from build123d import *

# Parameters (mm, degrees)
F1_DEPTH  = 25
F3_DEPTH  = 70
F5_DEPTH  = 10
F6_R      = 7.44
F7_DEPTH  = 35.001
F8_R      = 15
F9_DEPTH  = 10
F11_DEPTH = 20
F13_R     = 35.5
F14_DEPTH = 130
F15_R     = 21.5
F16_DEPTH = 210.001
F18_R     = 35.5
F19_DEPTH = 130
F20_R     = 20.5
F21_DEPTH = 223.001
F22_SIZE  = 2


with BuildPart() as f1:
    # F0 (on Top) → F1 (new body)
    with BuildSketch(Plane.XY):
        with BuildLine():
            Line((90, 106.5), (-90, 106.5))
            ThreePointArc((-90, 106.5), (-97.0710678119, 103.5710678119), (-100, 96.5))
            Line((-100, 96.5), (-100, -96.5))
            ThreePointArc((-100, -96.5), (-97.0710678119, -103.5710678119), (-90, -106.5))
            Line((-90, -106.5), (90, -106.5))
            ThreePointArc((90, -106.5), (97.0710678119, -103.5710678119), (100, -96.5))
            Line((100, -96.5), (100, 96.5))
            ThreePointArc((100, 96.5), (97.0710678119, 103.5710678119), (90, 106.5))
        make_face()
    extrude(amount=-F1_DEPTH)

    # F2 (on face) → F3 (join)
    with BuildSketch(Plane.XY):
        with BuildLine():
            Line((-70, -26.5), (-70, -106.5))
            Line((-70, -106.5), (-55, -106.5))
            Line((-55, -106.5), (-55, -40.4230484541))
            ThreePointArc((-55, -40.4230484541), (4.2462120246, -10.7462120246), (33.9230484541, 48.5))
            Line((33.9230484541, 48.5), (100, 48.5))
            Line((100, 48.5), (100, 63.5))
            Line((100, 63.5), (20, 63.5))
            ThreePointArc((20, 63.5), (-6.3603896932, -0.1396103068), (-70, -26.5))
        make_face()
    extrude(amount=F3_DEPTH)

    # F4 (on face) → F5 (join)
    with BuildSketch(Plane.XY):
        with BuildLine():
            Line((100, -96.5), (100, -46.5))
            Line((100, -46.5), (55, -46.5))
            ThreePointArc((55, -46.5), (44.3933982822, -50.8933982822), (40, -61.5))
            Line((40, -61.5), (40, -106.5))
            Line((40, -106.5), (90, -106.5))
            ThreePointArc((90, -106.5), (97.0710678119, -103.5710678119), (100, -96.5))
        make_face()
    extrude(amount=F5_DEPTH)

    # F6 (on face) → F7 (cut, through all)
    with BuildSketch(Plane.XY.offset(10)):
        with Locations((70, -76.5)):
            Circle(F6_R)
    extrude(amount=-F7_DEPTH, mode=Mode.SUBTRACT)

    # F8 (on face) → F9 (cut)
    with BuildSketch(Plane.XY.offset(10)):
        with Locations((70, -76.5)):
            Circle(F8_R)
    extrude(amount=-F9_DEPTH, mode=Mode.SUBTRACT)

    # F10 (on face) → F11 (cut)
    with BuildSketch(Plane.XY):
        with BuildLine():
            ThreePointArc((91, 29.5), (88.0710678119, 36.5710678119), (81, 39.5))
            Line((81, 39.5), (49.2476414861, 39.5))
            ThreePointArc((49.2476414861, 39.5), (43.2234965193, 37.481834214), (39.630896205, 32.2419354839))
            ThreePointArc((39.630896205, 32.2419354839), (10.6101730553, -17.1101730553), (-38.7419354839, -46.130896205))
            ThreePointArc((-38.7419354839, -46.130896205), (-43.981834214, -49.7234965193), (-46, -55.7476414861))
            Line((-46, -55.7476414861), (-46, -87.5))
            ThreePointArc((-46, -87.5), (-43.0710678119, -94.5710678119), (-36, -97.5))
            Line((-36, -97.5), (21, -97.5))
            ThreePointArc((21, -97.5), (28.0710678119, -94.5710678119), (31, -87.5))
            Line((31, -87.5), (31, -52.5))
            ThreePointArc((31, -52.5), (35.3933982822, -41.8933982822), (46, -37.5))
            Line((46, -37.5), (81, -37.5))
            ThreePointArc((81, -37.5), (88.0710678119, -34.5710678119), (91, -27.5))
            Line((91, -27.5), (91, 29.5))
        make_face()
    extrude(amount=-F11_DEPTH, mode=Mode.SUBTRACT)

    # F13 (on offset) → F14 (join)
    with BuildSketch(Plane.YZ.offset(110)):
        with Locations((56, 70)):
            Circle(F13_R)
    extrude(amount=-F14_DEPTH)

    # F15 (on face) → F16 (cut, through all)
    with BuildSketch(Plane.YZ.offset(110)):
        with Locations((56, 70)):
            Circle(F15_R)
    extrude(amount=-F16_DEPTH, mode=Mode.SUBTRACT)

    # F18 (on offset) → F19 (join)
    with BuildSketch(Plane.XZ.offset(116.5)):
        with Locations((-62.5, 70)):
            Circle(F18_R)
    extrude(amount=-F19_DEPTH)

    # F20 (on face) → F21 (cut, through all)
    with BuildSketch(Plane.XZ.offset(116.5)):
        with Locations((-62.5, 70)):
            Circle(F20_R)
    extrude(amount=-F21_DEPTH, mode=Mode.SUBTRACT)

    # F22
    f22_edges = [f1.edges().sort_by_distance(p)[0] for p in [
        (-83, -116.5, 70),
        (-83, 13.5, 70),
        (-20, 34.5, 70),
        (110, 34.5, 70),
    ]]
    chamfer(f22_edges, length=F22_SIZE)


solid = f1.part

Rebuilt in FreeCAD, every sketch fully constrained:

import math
import FreeCAD as App
import Part
import Sketcher
Q = App.Units.Quantity


def edges_at(feature, points):
    """Names of the edges that pass closest to the given points."""
    edges = feature.Shape.Edges
    near = lambda p: min(range(len(edges)), key=lambda i: edges[i].distToShape(Part.Vertex(*p))[0])
    return sorted({f"Edge{near(p) + 1}" for p in points})

doc = App.newDocument("Part")
params = doc.addObject("Spreadsheet::Sheet", "Params")
for row, (alias, value) in enumerate([
    ("sketch1_radius", "10 mm"),
    ("sketch1_width", "180 mm"),
    ("sketch1_height", "193 mm"),
    ("pad1_length", "25 mm"),
    ("sketch2_radius", "105 mm"),
    ("sketch2_radius2", "90 mm"),
    ("sketch2_width", "15 mm"),
    ("sketch2_width2", "80 mm"),
    ("pad2_length", "70 mm"),
    ("sketch3_radius", "15 mm"),
    ("sketch3_radius2", "10 mm"),
    ("sketch3_width", "45 mm"),
    ("pad3_length", "10 mm"),
    ("sketch4_diameter", "14.88 mm"),
    ("sketch5_diameter", "30 mm"),
    ("pocket2_length", "10 mm"),
    ("sketch6_radius", "10 mm"),
    ("sketch6_radius2", "114 mm"),
    ("sketch6_radius3", "15 mm"),
    ("sketch6_width", "57 mm"),
    ("sketch6_width2", "35 mm"),
    ("pocket3_length", "20 mm"),
    ("sketch7_diameter", "71 mm"),
    ("pad4_length", "130 mm"),
    ("sketch8_diameter", "43 mm"),
    ("sketch9_diameter", "71 mm"),
    ("pad5_length", "130 mm"),
    ("sketch10_diameter", "41 mm"),
    ("chamfer_size", "2 mm"),
], start=1):
    params.set(f"A{row}", alias)
    params.set(f"B{row}", "=" + value)
    params.setAlias(f"B{row}", alias)

body = doc.addObject("PartDesign::Body", "Body")

sketch1 = body.newObject("Sketcher::SketchObject", "Sketch")
sketch1.AttachmentSupport = (doc.getObject("XY_Plane"), [""])
sketch1.MapMode = "FlatFace"
sketch1.addGeometry([
    Part.LineSegment(App.Vector(90, 106.5, 0), App.Vector(-90, 106.5, 0)),
    Part.ArcOfCircle(Part.Circle(App.Vector(-90, 96.5, 0), App.Vector(0, 0, 1), 10), math.radians(90), math.radians(180)),
    Part.LineSegment(App.Vector(-100, 96.5, 0), App.Vector(-100, -96.5, 0)),
    Part.ArcOfCircle(Part.Circle(App.Vector(-90, -96.5, 0), App.Vector(0, 0, 1), 10), math.radians(180), math.radians(270)),
    Part.LineSegment(App.Vector(-90, -106.5, 0), App.Vector(90, -106.5, 0)),
    Part.ArcOfCircle(Part.Circle(App.Vector(90, -96.5, 0), App.Vector(0, 0, 1), 10), math.radians(-90), math.radians(0)),
    Part.LineSegment(App.Vector(100, -96.5, 0), App.Vector(100, 96.5, 0)),
    Part.ArcOfCircle(Part.Circle(App.Vector(90, 96.5, 0), App.Vector(0, 0, 1), 10), math.radians(0), math.radians(90)),
], False)
sketch1.addConstraint([
    Sketcher.Constraint("Tangent", 0, 2, 1, 1),
    Sketcher.Constraint("Tangent", 1, 2, 2, 1),
    Sketcher.Constraint("Tangent", 2, 2, 3, 1),
    Sketcher.Constraint("Tangent", 3, 2, 4, 1),
    Sketcher.Constraint("Tangent", 4, 2, 5, 1),
    Sketcher.Constraint("Tangent", 5, 2, 6, 1),
    Sketcher.Constraint("Tangent", 6, 2, 7, 1),
    Sketcher.Constraint("Tangent", 7, 2, 0, 1),
    Sketcher.Constraint("Horizontal", 0),
    Sketcher.Constraint("Vertical", 2),
    Sketcher.Constraint("Horizontal", 4),
    Sketcher.Constraint("Vertical", 6),
    Sketcher.Constraint("Equal", 1, 3),
    Sketcher.Constraint("Equal", 3, 5),
    Sketcher.Constraint("Equal", 5, 7),
    Sketcher.Constraint("Symmetric", 1, 3, 5, 3, -1, 1),
    Sketcher.Constraint("Radius", 1, Q("10 mm")),
    Sketcher.Constraint("DistanceX", 0, 2, 0, 1, Q("180 mm")),
    Sketcher.Constraint("DistanceY", 2, 2, 2, 1, Q("193 mm")),
])
sketch1.setExpression("Constraints[16]", "Params.sketch1_radius")
sketch1.setExpression("Constraints[17]", "Params.sketch1_width")
sketch1.setExpression("Constraints[18]", "Params.sketch1_height")
pad1 = body.newObject("PartDesign::Pad", "Pad")
pad1.Profile = sketch1
pad1.setExpression("Length", "Params.pad1_length")
pad1.Reversed = True

sketch2 = body.newObject("Sketcher::SketchObject", "Sketch001")
sketch2.AttachmentSupport = (doc.getObject("XY_Plane"), [""])
sketch2.MapMode = "FlatFace"
sketch2.addGeometry([
    Part.LineSegment(App.Vector(-70, -26.5, 0), App.Vector(-70, -106.5, 0)),
    Part.LineSegment(App.Vector(-70, -106.5, 0), App.Vector(-55, -106.5, 0)),
    Part.LineSegment(App.Vector(-55, -106.5, 0), App.Vector(-55, -40.423048, 0)),
    Part.ArcOfCircle(Part.Circle(App.Vector(-70, 63.5, 0), App.Vector(0, 0, 1), 105), math.radians(-81.786789), math.radians(-8.213211)),
    Part.LineSegment(App.Vector(33.923048, 48.5, 0), App.Vector(100, 48.5, 0)),
    Part.LineSegment(App.Vector(100, 48.5, 0), App.Vector(100, 63.5, 0)),
    Part.LineSegment(App.Vector(100, 63.5, 0), App.Vector(20, 63.5, 0)),
    Part.ArcOfCircle(Part.Circle(App.Vector(-70, 63.5, 0), App.Vector(0, 0, 1), 90), math.radians(-90), math.radians(0)),
], False)
sketch2.addConstraint([
    Sketcher.Constraint("Coincident", 0, 2, 1, 1),
    Sketcher.Constraint("Coincident", 1, 2, 2, 1),
    Sketcher.Constraint("Coincident", 2, 2, 3, 1),
    Sketcher.Constraint("Coincident", 3, 2, 4, 1),
    Sketcher.Constraint("Coincident", 4, 2, 5, 1),
    Sketcher.Constraint("Coincident", 5, 2, 6, 1),
    Sketcher.Constraint("Coincident", 6, 2, 7, 2),
    Sketcher.Constraint("Coincident", 7, 1, 0, 1),
    Sketcher.Constraint("Vertical", 0),
    Sketcher.Constraint("Horizontal", 1),
    Sketcher.Constraint("Vertical", 2),
    Sketcher.Constraint("Horizontal", 4),
    Sketcher.Constraint("Vertical", 5),
    Sketcher.Constraint("Horizontal", 6),
    Sketcher.Constraint("Coincident", 7, 3, 3, 3),
    Sketcher.Constraint("Horizontal", 7, 3, 5, 2),
    Sketcher.Constraint("Vertical", 7, 3, 0, 2),
    Sketcher.Constraint("Equal", 6, 0),
    Sketcher.Constraint("Equal", 4, 2),
    Sketcher.Constraint("Radius", 3, Q("105 mm")),
    Sketcher.Constraint("Radius", 7, Q("90 mm")),
    Sketcher.Constraint("DistanceX", 1, 1, 1, 2, Q("15 mm")),
    Sketcher.Constraint("DistanceX", 6, 2, 6, 1, Q("80 mm")),
    Sketcher.Constraint("DistanceX", 3, 3, -1, 1, Q("70 mm")),
    Sketcher.Constraint("DistanceY", -1, 1, 3, 3, Q("63.5 mm")),
])
sketch2.setExpression("Constraints[19]", "Params.sketch2_radius")
sketch2.setExpression("Constraints[20]", "Params.sketch2_radius2")
sketch2.setExpression("Constraints[21]", "Params.sketch2_width")
sketch2.setExpression("Constraints[22]", "Params.sketch2_width2")
pad2 = body.newObject("PartDesign::Pad", "Pad001")
pad2.Profile = sketch2
pad2.setExpression("Length", "Params.pad2_length")

sketch3 = body.newObject("Sketcher::SketchObject", "Sketch002")
sketch3.AttachmentSupport = (doc.getObject("XY_Plane"), [""])
sketch3.MapMode = "FlatFace"
sketch3.addGeometry([
    Part.LineSegment(App.Vector(100, -96.5, 0), App.Vector(100, -46.5, 0)),
    Part.LineSegment(App.Vector(100, -46.5, 0), App.Vector(55, -46.5, 0)),
    Part.ArcOfCircle(Part.Circle(App.Vector(55, -61.5, 0), App.Vector(0, 0, 1), 15), math.radians(90), math.radians(180)),
    Part.LineSegment(App.Vector(40, -61.5, 0), App.Vector(40, -106.5, 0)),
    Part.LineSegment(App.Vector(40, -106.5, 0), App.Vector(90, -106.5, 0)),
    Part.ArcOfCircle(Part.Circle(App.Vector(90, -96.5, 0), App.Vector(0, 0, 1), 10), math.radians(-90), math.radians(0)),
], False)
sketch3.addConstraint([
    Sketcher.Constraint("Coincident", 0, 2, 1, 1),
    Sketcher.Constraint("Tangent", 1, 2, 2, 1),
    Sketcher.Constraint("Tangent", 2, 2, 3, 1),
    Sketcher.Constraint("Coincident", 3, 2, 4, 1),
    Sketcher.Constraint("Tangent", 4, 2, 5, 1),
    Sketcher.Constraint("Tangent", 5, 2, 0, 1),
    Sketcher.Constraint("Vertical", 0),
    Sketcher.Constraint("Horizontal", 1),
    Sketcher.Constraint("Vertical", 3),
    Sketcher.Constraint("Horizontal", 4),
    Sketcher.Constraint("Equal", 4, 0),
    Sketcher.Constraint("Radius", 2, Q("15 mm")),
    Sketcher.Constraint("Radius", 5, Q("10 mm")),
    Sketcher.Constraint("DistanceX", 1, 2, 1, 1, Q("45 mm")),
    Sketcher.Constraint("DistanceX", -1, 1, 2, 3, Q("55 mm")),
    Sketcher.Constraint("DistanceY", 2, 3, -1, 1, Q("61.5 mm")),
])
sketch3.setExpression("Constraints[11]", "Params.sketch3_radius")
sketch3.setExpression("Constraints[12]", "Params.sketch3_radius2")
sketch3.setExpression("Constraints[13]", "Params.sketch3_width")
pad3 = body.newObject("PartDesign::Pad", "Pad002")
pad3.Profile = sketch3
pad3.setExpression("Length", "Params.pad3_length")

sketch4 = body.newObject("Sketcher::SketchObject", "Sketch003")
sketch4.AttachmentSupport = (doc.getObject("XY_Plane"), [""])
sketch4.MapMode = "FlatFace"
sketch4.AttachmentOffset = App.Placement(App.Vector(0, 0, 10), App.Rotation())
sketch4.addGeometry(Part.Circle(App.Vector(70, -76.5, 0), App.Vector(0, 0, 1), 7.44), False)
sketch4.addConstraint([
    Sketcher.Constraint("Diameter", 0, Q("14.88 mm")),
    Sketcher.Constraint("DistanceX", -1, 1, 0, 3, Q("70 mm")),
    Sketcher.Constraint("DistanceY", 0, 3, -1, 1, Q("76.5 mm")),
])
sketch4.setExpression("Constraints[0]", "Params.sketch4_diameter")
pocket1 = body.newObject("PartDesign::Pocket", "Pocket")
pocket1.Profile = sketch4
pocket1.Type = "ThroughAll"

sketch5 = body.newObject("Sketcher::SketchObject", "Sketch004")
sketch5.AttachmentSupport = (doc.getObject("XY_Plane"), [""])
sketch5.MapMode = "FlatFace"
sketch5.AttachmentOffset = App.Placement(App.Vector(0, 0, 10), App.Rotation())
sketch5.addGeometry(Part.Circle(App.Vector(70, -76.5, 0), App.Vector(0, 0, 1), 15), False)
sketch5.addConstraint([
    Sketcher.Constraint("Diameter", 0, Q("30 mm")),
    Sketcher.Constraint("DistanceX", -1, 1, 0, 3, Q("70 mm")),
    Sketcher.Constraint("DistanceY", 0, 3, -1, 1, Q("76.5 mm")),
])
sketch5.setExpression("Constraints[0]", "Params.sketch5_diameter")
pocket2 = body.newObject("PartDesign::Pocket", "Pocket001")
pocket2.Profile = sketch5
pocket2.setExpression("Length", "Params.pocket2_length")

sketch6 = body.newObject("Sketcher::SketchObject", "Sketch005")
sketch6.AttachmentSupport = (doc.getObject("XY_Plane"), [""])
sketch6.MapMode = "FlatFace"
sketch6.addGeometry([
    Part.ArcOfCircle(Part.Circle(App.Vector(81, 29.5, 0), App.Vector(0, 0, 1), 10), math.radians(0), math.radians(90)),
    Part.LineSegment(App.Vector(81, 39.5, 0), App.Vector(49.247641, 39.5, 0)),
    Part.ArcOfCircle(Part.Circle(App.Vector(49.247641, 29.5, 0), App.Vector(0, 0, 1), 10), math.radians(90), math.radians(164.086039)),
    Part.ArcOfCircle(Part.Circle(App.Vector(-70, 63.5, 0), App.Vector(0, 0, 1), 114), math.radians(-74.086039), math.radians(-15.913961)),
    Part.ArcOfCircle(Part.Circle(App.Vector(-36, -55.747641, 0), App.Vector(0, 0, 1), 10), math.radians(105.913961), math.radians(180)),
    Part.LineSegment(App.Vector(-46, -55.747641, 0), App.Vector(-46, -87.5, 0)),
    Part.ArcOfCircle(Part.Circle(App.Vector(-36, -87.5, 0), App.Vector(0, 0, 1), 10), math.radians(180), math.radians(270)),
    Part.LineSegment(App.Vector(-36, -97.5, 0), App.Vector(21, -97.5, 0)),
    Part.ArcOfCircle(Part.Circle(App.Vector(21, -87.5, 0), App.Vector(0, 0, 1), 10), math.radians(-90), math.radians(0)),
    Part.LineSegment(App.Vector(31, -87.5, 0), App.Vector(31, -52.5, 0)),
    Part.ArcOfCircle(Part.Circle(App.Vector(46, -52.5, 0), App.Vector(0, 0, 1), 15), math.radians(90), math.radians(180)),
    Part.LineSegment(App.Vector(46, -37.5, 0), App.Vector(81, -37.5, 0)),
    Part.ArcOfCircle(Part.Circle(App.Vector(81, -27.5, 0), App.Vector(0, 0, 1), 10), math.radians(-90), math.radians(0)),
    Part.LineSegment(App.Vector(91, -27.5, 0), App.Vector(91, 29.5, 0)),
], False)
sketch6.addConstraint([
    Sketcher.Constraint("Tangent", 0, 2, 1, 1),
    Sketcher.Constraint("Tangent", 1, 2, 2, 1),
    Sketcher.Constraint("Tangent", 2, 2, 3, 2),
    Sketcher.Constraint("Tangent", 3, 1, 4, 1),
    Sketcher.Constraint("Tangent", 4, 2, 5, 1),
    Sketcher.Constraint("Tangent", 5, 2, 6, 1),
    Sketcher.Constraint("Tangent", 6, 2, 7, 1),
    Sketcher.Constraint("Tangent", 7, 2, 8, 1),
    Sketcher.Constraint("Tangent", 8, 2, 9, 1),
    Sketcher.Constraint("Tangent", 9, 2, 10, 2),
    Sketcher.Constraint("Tangent", 10, 1, 11, 1),
    Sketcher.Constraint("Tangent", 11, 2, 12, 1),
    Sketcher.Constraint("Tangent", 12, 2, 13, 1),
    Sketcher.Constraint("Tangent", 13, 2, 0, 1),
    Sketcher.Constraint("Horizontal", 1),
    Sketcher.Constraint("Vertical", 5),
    Sketcher.Constraint("Horizontal", 7),
    Sketcher.Constraint("Vertical", 9),
    Sketcher.Constraint("Horizontal", 11),
    Sketcher.Constraint("Vertical", 13),
    Sketcher.Constraint("Equal", 0, 2),
    Sketcher.Constraint("Equal", 2, 4),
    Sketcher.Constraint("Equal", 4, 6),
    Sketcher.Constraint("Equal", 6, 8),
    Sketcher.Constraint("Equal", 8, 12),
    Sketcher.Constraint("Equal", 1, 5),
    Sketcher.Constraint("Equal", 11, 9),
    Sketcher.Constraint("Equal", 7, 13),
    Sketcher.Constraint("Radius", 0, Q("10 mm")),
    Sketcher.Constraint("Radius", 3, Q("114 mm")),
    Sketcher.Constraint("Radius", 10, Q("15 mm")),
    Sketcher.Constraint("DistanceX", 7, 1, 7, 2, Q("57 mm")),
    Sketcher.Constraint("DistanceX", 11, 1, 11, 2, Q("35 mm")),
    Sketcher.Constraint("DistanceX", -1, 1, 0, 3, Q("81 mm")),
    Sketcher.Constraint("DistanceX", 3, 3, -1, 1, Q("70 mm")),
    Sketcher.Constraint("DistanceY", -1, 1, 0, 3, Q("29.5 mm")),
])
sketch6.setExpression("Constraints[28]", "Params.sketch6_radius")
sketch6.setExpression("Constraints[29]", "Params.sketch6_radius2")
sketch6.setExpression("Constraints[30]", "Params.sketch6_radius3")
sketch6.setExpression("Constraints[31]", "Params.sketch6_width")
sketch6.setExpression("Constraints[32]", "Params.sketch6_width2")
pocket3 = body.newObject("PartDesign::Pocket", "Pocket002")
pocket3.Profile = sketch6
pocket3.setExpression("Length", "Params.pocket3_length")

sketch7 = body.newObject("Sketcher::SketchObject", "Sketch006")
sketch7.AttachmentSupport = (doc.getObject("YZ_Plane"), [""])
sketch7.MapMode = "FlatFace"
sketch7.AttachmentOffset = App.Placement(App.Vector(0, 0, 110), App.Rotation())
sketch7.addGeometry(Part.Circle(App.Vector(56, 70, 0), App.Vector(0, 0, 1), 35.5), False)
sketch7.addConstraint([
    Sketcher.Constraint("Diameter", 0, Q("71 mm")),
    Sketcher.Constraint("DistanceX", -1, 1, 0, 3, Q("56 mm")),
    Sketcher.Constraint("DistanceY", -1, 1, 0, 3, Q("70 mm")),
])
sketch7.setExpression("Constraints[0]", "Params.sketch7_diameter")
pad4 = body.newObject("PartDesign::Pad", "Pad003")
pad4.Profile = sketch7
pad4.setExpression("Length", "Params.pad4_length")
pad4.Reversed = True

sketch8 = body.newObject("Sketcher::SketchObject", "Sketch007")
sketch8.AttachmentSupport = (doc.getObject("YZ_Plane"), [""])
sketch8.MapMode = "FlatFace"
sketch8.AttachmentOffset = App.Placement(App.Vector(0, 0, 110), App.Rotation())
sketch8.addGeometry(Part.Circle(App.Vector(56, 70, 0), App.Vector(0, 0, 1), 21.5), False)
sketch8.addConstraint([
    Sketcher.Constraint("Diameter", 0, Q("43 mm")),
    Sketcher.Constraint("DistanceX", -1, 1, 0, 3, Q("56 mm")),
    Sketcher.Constraint("DistanceY", -1, 1, 0, 3, Q("70 mm")),
])
sketch8.setExpression("Constraints[0]", "Params.sketch8_diameter")
pocket4 = body.newObject("PartDesign::Pocket", "Pocket003")
pocket4.Profile = sketch8
pocket4.Type = "ThroughAll"

sketch9 = body.newObject("Sketcher::SketchObject", "Sketch008")
sketch9.AttachmentSupport = (doc.getObject("XZ_Plane"), [""])
sketch9.MapMode = "FlatFace"
sketch9.AttachmentOffset = App.Placement(App.Vector(0, 0, 116.5), App.Rotation())
sketch9.addGeometry(Part.Circle(App.Vector(-62.5, 70, 0), App.Vector(0, 0, 1), 35.5), False)
sketch9.addConstraint([
    Sketcher.Constraint("Diameter", 0, Q("71 mm")),
    Sketcher.Constraint("DistanceY", -1, 1, 0, 3, Q("70 mm")),
    Sketcher.Constraint("DistanceX", 0, 3, -1, 1, Q("62.5 mm")),
])
sketch9.setExpression("Constraints[0]", "Params.sketch9_diameter")
pad5 = body.newObject("PartDesign::Pad", "Pad004")
pad5.Profile = sketch9
pad5.setExpression("Length", "Params.pad5_length")
pad5.Reversed = True

sketch10 = body.newObject("Sketcher::SketchObject", "Sketch009")
sketch10.AttachmentSupport = (doc.getObject("XZ_Plane"), [""])
sketch10.MapMode = "FlatFace"
sketch10.AttachmentOffset = App.Placement(App.Vector(0, 0, 116.5), App.Rotation())
sketch10.addGeometry(Part.Circle(App.Vector(-62.5, 70, 0), App.Vector(0, 0, 1), 20.5), False)
sketch10.addConstraint([
    Sketcher.Constraint("Diameter", 0, Q("41 mm")),
    Sketcher.Constraint("DistanceY", -1, 1, 0, 3, Q("70 mm")),
    Sketcher.Constraint("DistanceX", 0, 3, -1, 1, Q("62.5 mm")),
])
sketch10.setExpression("Constraints[0]", "Params.sketch10_diameter")
pocket5 = body.newObject("PartDesign::Pocket", "Pocket004")
pocket5.Profile = sketch10
pocket5.Type = "ThroughAll"
doc.recompute()

chamfer = body.newObject("PartDesign::Chamfer", "Chamfer")
chamfer.Base = (pocket5, edges_at(pocket5, [
    (-83, -116.5, 70),
    (-83, 13.5, 70),
    (-20, 34.5, 70),
    (110, 34.5, 70),
]))
chamfer.setExpression("Size", "Params.chamfer_size")

doc.recompute()
